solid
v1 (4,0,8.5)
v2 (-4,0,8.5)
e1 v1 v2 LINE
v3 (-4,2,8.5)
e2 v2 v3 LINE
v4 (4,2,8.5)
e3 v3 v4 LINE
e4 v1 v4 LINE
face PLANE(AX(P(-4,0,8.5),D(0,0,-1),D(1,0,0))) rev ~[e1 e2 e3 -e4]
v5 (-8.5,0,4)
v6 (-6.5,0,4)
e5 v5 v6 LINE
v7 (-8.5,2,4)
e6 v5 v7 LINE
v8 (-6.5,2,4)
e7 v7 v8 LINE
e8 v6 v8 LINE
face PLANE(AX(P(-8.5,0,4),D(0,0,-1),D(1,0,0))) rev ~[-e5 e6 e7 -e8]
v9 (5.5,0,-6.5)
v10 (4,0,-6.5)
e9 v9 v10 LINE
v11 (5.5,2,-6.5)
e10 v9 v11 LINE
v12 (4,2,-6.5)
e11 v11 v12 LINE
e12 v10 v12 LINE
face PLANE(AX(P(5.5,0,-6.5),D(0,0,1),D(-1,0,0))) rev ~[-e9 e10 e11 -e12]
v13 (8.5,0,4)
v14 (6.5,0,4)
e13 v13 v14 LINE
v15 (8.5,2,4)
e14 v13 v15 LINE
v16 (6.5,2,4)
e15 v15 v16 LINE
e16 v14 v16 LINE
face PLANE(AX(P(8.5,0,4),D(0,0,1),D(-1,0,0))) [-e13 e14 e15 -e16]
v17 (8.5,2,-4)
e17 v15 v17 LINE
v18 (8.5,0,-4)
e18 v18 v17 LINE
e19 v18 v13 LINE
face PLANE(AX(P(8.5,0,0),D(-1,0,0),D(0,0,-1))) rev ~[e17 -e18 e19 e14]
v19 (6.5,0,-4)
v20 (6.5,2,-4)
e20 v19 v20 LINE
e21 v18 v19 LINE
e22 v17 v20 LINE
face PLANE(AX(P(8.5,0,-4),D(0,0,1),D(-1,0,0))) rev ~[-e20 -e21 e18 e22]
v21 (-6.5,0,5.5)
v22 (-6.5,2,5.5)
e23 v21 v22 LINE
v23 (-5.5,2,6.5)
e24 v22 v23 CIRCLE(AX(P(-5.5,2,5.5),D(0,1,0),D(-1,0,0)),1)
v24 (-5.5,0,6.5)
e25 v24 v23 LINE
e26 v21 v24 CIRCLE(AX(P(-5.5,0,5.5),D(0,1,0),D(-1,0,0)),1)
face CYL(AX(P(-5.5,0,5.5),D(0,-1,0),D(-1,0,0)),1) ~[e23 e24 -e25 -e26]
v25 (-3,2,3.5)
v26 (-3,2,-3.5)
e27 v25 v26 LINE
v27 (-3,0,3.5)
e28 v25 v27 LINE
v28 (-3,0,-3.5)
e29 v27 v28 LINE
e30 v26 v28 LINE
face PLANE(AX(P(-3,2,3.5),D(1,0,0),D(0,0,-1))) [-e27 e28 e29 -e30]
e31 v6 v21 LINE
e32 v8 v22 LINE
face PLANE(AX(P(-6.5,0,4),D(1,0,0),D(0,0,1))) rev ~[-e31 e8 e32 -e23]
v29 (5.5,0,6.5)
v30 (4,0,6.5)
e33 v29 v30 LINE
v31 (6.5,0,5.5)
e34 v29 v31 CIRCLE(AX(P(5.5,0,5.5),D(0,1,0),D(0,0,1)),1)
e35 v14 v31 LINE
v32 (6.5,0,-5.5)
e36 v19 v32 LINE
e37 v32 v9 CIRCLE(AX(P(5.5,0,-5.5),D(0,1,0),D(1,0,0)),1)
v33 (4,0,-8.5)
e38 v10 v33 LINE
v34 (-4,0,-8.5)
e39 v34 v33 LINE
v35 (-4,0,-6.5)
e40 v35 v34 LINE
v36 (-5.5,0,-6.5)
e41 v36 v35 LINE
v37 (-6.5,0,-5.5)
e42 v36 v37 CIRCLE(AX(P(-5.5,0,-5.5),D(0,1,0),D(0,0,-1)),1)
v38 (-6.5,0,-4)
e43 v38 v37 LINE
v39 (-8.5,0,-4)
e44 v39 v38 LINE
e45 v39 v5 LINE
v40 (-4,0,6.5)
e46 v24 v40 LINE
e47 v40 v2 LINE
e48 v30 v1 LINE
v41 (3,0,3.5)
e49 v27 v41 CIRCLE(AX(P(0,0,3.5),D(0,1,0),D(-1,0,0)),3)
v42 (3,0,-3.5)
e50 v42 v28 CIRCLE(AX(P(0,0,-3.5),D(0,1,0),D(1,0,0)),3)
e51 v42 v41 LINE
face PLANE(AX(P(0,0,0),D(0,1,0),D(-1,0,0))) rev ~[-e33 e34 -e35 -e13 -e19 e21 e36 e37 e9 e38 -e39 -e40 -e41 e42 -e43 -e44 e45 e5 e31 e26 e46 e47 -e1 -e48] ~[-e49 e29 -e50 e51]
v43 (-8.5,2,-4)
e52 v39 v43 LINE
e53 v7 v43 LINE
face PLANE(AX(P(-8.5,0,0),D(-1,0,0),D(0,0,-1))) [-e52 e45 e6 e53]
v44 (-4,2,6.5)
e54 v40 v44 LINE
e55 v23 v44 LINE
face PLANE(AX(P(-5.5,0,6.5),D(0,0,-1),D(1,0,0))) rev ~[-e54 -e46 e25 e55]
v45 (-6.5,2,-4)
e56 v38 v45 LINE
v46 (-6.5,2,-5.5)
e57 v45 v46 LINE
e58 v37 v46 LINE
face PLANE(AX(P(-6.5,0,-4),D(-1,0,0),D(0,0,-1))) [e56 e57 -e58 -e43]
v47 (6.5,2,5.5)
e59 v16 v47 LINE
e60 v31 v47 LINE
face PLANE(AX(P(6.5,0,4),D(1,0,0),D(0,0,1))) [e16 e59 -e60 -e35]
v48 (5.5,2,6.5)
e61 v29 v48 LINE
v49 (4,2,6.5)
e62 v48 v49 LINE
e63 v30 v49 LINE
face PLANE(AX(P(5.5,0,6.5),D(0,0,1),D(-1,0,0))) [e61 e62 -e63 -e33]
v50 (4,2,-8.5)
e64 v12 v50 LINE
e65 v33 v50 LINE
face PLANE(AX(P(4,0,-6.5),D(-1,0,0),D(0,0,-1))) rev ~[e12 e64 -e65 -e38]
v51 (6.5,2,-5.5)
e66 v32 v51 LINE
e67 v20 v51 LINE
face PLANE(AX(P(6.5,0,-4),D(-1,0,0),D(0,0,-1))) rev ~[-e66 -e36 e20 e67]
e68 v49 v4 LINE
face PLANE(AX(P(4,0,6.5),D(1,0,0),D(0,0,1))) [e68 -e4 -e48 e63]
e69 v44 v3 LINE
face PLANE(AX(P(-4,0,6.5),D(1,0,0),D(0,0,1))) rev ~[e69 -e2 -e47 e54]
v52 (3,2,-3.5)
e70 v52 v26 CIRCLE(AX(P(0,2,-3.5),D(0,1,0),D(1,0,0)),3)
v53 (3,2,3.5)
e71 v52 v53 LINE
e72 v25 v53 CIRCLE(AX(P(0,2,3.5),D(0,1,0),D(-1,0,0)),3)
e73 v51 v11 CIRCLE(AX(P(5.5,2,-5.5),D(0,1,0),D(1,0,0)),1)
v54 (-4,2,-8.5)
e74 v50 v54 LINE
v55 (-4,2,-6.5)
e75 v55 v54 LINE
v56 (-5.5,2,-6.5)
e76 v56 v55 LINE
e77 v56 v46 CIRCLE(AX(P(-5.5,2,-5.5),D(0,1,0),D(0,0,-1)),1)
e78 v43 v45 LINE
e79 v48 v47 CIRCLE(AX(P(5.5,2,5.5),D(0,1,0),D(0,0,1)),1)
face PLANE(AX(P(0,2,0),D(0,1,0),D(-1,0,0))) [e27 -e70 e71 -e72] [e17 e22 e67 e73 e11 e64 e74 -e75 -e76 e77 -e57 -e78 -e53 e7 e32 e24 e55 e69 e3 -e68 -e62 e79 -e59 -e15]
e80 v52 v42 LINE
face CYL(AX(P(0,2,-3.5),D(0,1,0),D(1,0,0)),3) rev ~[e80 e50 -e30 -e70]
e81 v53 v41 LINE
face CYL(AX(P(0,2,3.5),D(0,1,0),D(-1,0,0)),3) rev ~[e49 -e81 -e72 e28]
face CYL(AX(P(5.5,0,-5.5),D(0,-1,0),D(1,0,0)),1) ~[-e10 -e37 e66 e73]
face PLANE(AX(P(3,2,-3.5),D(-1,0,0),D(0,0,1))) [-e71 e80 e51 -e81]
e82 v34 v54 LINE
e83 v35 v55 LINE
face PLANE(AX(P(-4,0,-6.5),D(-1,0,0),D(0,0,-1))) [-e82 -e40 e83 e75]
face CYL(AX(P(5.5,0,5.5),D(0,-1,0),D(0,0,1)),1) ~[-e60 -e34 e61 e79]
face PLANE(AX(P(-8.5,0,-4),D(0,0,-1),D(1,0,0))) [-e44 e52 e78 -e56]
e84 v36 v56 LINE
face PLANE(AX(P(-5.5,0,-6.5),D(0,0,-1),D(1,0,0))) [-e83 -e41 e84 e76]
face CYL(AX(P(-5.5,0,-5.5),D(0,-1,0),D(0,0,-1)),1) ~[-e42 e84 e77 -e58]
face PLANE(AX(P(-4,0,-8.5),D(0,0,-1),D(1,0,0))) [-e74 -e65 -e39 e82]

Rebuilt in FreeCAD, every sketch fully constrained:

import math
import FreeCAD as App
import Part
import Sketcher

doc = App.newDocument("Part")
body = doc.addObject("PartDesign::Body", "Body")

# Sketch on XZ plane
sketch1 = body.newObject("Sketcher::SketchObject", "Sketch")
sketch1.AttachmentSupport = (doc.getObject("XZ_Plane"), [""])
sketch1.MapMode = "FlatFace"
sketch1.addGeometry([
    Part.LineSegment(App.Vector(-8.5, -4, 0), App.Vector(-8.5, 4, 0)),  # 0
    Part.LineSegment(App.Vector(-8.5, 4, 0), App.Vector(-6.5, 4, 0)),  # 1
    Part.LineSegment(App.Vector(-6.5, 4, 0), App.Vector(-6.5, 5.5, 0)),  # 2
    Part.ArcOfCircle(Part.Circle(App.Vector(-5.5, 5.5, 0), App.Vector(0, 0, 1), 1), math.radians(90), math.radians(180)),  # 3
    Part.LineSegment(App.Vector(-5.5, 6.5, 0), App.Vector(-4, 6.5, 0)),  # 4
    Part.LineSegment(App.Vector(-4, 6.5, 0), App.Vector(-4, 8.5, 0)),  # 5
    Part.LineSegment(App.Vector(-4, 8.5, 0), App.Vector(4, 8.5, 0)),  # 6
    Part.LineSegment(App.Vector(4, 8.5, 0), App.Vector(4, 6.5, 0)),  # 7
    Part.LineSegment(App.Vector(4, 6.5, 0), App.Vector(5.5, 6.5, 0)),  # 8
    Part.ArcOfCircle(Part.Circle(App.Vector(5.5, 5.5, 0), App.Vector(0, 0, 1), 1), math.radians(0), math.radians(90)),  # 9
    Part.LineSegment(App.Vector(6.5, 5.5, 0), App.Vector(6.5, 4, 0)),  # 10
    Part.LineSegment(App.Vector(6.5, 4, 0), App.Vector(8.5, 4, 0)),  # 11
    Part.LineSegment(App.Vector(8.5, 4, 0), App.Vector(8.5, -4, 0)),  # 12
    Part.LineSegment(App.Vector(8.5, -4, 0), App.Vector(6.5, -4, 0)),  # 13
    Part.LineSegment(App.Vector(6.5, -4, 0), App.Vector(6.5, -5.5, 0)),  # 14
    Part.ArcOfCircle(Part.Circle(App.Vector(5.5, -5.5, 0), App.Vector(0, 0, 1), 1), math.radians(-90), math.radians(0)),  # 15
    Part.LineSegment(App.Vector(5.5, -6.5, 0), App.Vector(4, -6.5, 0)),  # 16
    Part.LineSegment(App.Vector(4, -6.5, 0), App.Vector(4, -8.5, 0)),  # 17
    Part.LineSegment(App.Vector(4, -8.5, 0), App.Vector(-4, -8.5, 0)),  # 18
    Part.LineSegment(App.Vector(-4, -8.5, 0), App.Vector(-4, -6.5, 0)),  # 19
    Part.LineSegment(App.Vector(-4, -6.5, 0), App.Vector(-5.5, -6.5, 0)),  # 20
    Part.ArcOfCircle(Part.Circle(App.Vector(-5.5, -5.5, 0), App.Vector(0, 0, 1), 1), math.radians(180), math.radians(270)),  # 21
    Part.LineSegment(App.Vector(-6.5, -5.5, 0), App.Vector(-6.5, -4, 0)),  # 22
    Part.LineSegment(App.Vector(-6.5, -4, 0), App.Vector(-8.5, -4, 0)),  # 23
], False)
sketch1.addConstraint([
    Sketcher.Constraint("Coincident", 0, 2, 1, 1),
    Sketcher.Constraint("Coincident", 1, 2, 2, 1),
    Sketcher.Constraint("Tangent", 2, 2, 3, 2),
    Sketcher.Constraint("Tangent", 3, 1, 4, 1),
    Sketcher.Constraint("Coincident", 4, 2, 5, 1),
    Sketcher.Constraint("Coincident", 5, 2, 6, 1),
    Sketcher.Constraint("Coincident", 6, 2, 7, 1),
    Sketcher.Constraint("Coincident", 7, 2, 8, 1),
    Sketcher.Constraint("Tangent", 8, 2, 9, 2),
    Sketcher.Constraint("Tangent", 9, 1, 10, 1),
    Sketcher.Constraint("Coincident", 10, 2, 11, 1),
    Sketcher.Constraint("Coincident", 11, 2, 12, 1),
    Sketcher.Constraint("Coincident", 12, 2, 13, 1),
    Sketcher.Constraint("Coincident", 13, 2, 14, 1),
    Sketcher.Constraint("Tangent", 14, 2, 15, 2),
    Sketcher.Constraint("Tangent", 15, 1, 16, 1),
    Sketcher.Constraint("Coincident", 16, 2, 17, 1),
    Sketcher.Constraint("Coincident", 17, 2, 18, 1),
    Sketcher.Constraint("Coincident", 18, 2, 19, 1),
    Sketcher.Constraint("Coincident", 19, 2, 20, 1),
    Sketcher.Constraint("Tangent", 20, 2, 21, 2),
    Sketcher.Constraint("Tangent", 21, 1, 22, 1),
    Sketcher.Constraint("Coincident", 22, 2, 23, 1),
    Sketcher.Constraint("Coincident", 23, 2, 0, 1),
    Sketcher.Constraint("Vertical", 0),
    Sketcher.Constraint("Horizontal", 1),
    Sketcher.Constraint("Vertical", 2),
    Sketcher.Constraint("Horizontal", 4),
    Sketcher.Constraint("Vertical", 5),
    Sketcher.Constraint("Horizontal", 6),
    Sketcher.Constraint("Vertical", 7),
    Sketcher.Constraint("Horizontal", 8),
    Sketcher.Constraint("Vertical", 10),
    Sketcher.Constraint("Horizontal", 11),
    Sketcher.Constraint("Vertical", 12),
    Sketcher.Constraint("Horizontal", 13),
    Sketcher.Constraint("Vertical", 14),
    Sketcher.Constraint("Horizontal", 16),
    Sketcher.Constraint("Vertical", 17),
    Sketcher.Constraint("Horizontal", 18),
    Sketcher.Constraint("Vertical", 19),
    Sketcher.Constraint("Horizontal", 20),
    Sketcher.Constraint("Vertical", 22),
    Sketcher.Constraint("Horizontal", 23),
    Sketcher.Constraint("Equal", 3, 9),
    Sketcher.Constraint("Equal", 9, 15),
    Sketcher.Constraint("Equal", 15, 21),
    Sketcher.Constraint("Symmetric", 3, 3, 15, 3, -1, 1),
    Sketcher.Constraint("Symmetric", 9, 3, 21, 3, -1, 1),
    Sketcher.Constraint("Symmetric", 0, 2, 12, 2, -1, 1),
    Sketcher.Constraint("Symmetric", 5, 2, 17, 2, -1, 1),
    Sketcher.Constraint("Symmetric", 3, 3, 9, 3, -2),
    Sketcher.Constraint("Horizontal", 1, 2, 10, 2),
    Sketcher.Constraint("Horizontal", 13, 2, 22, 2),
    Sketcher.Constraint("Vertical", 7, 2, 16, 2),
    Sketcher.Constraint("Vertical", 5, 2, 18, 2),
    Sketcher.Constraint("Equal", 18, 0),
    Sketcher.Constraint("Equal", 20, 2),
    Sketcher.Constraint("Equal", 23, 5),
    Sketcher.Constraint("Radius", 3, 1.0),
    Sketcher.Constraint("DistanceX", 1, 1, 1, 2, 2.0),
    Sketcher.Constraint("DistanceY", -1, 1, 0, 2, 4.0),
    Sketcher.Constraint("DistanceX", 0, 2, -1, 1, 8.5),
])
pad1 = body.newObject("PartDesign::Pad", "Pad")
pad1.Profile = sketch1
pad1.Length = 2
pad1.Reversed = True

# Sketch on XZ plane
sketch2 = body.newObject("Sketcher::SketchObject", "Sketch001")
sketch2.AttachmentSupport = (doc.getObject("XZ_Plane"), [""])
sketch2.MapMode = "FlatFace"
sketch2.AttachmentOffset = App.Placement(App.Vector(0, 0, -2), App.Rotation())
sketch2.addGeometry([
    Part.LineSegment(App.Vector(-3, -3.5, 0), App.Vector(-3, 3.5, 0)),
    Part.ArcOfCircle(Part.Circle(App.Vector(0, 3.5, 0), App.Vector(0, 0, 1), 3), math.radians(0), math.radians(180)),
    Part.LineSegment(App.Vector(3, 3.5, 0), App.Vector(3, -3.5, 0)),
    Part.ArcOfCircle(Part.Circle(App.Vector(0, -3.5, 0), App.Vector(0, 0, 1), 3), math.radians(180), math.radians(360)),
], False)
sketch2.addConstraint([
    Sketcher.Constraint("Tangent", 0, 2, 1, 2),
    Sketcher.Constraint("Tangent", 1, 1, 2, 1),
    Sketcher.Constraint("Tangent", 2, 2, 3, 2),
    Sketcher.Constraint("Tangent", 3, 1, 0, 1),
    Sketcher.Constraint("Vertical", 0),
    Sketcher.Constraint("Vertical", 2),
    Sketcher.Constraint("Symmetric", 1, 3, 3, 3, -1, 1),
    Sketcher.Constraint("Radius", 1, 3.0),
    Sketcher.Constraint("DistanceY", 0, 1, 0, 2, 7.0),
])
pocket1 = body.newObject("PartDesign::Pocket", "Pocket")
pocket1.Profile = sketch2
pocket1.Type = "ThroughAll"
pocket1.Reversed = True

doc.recompute()
